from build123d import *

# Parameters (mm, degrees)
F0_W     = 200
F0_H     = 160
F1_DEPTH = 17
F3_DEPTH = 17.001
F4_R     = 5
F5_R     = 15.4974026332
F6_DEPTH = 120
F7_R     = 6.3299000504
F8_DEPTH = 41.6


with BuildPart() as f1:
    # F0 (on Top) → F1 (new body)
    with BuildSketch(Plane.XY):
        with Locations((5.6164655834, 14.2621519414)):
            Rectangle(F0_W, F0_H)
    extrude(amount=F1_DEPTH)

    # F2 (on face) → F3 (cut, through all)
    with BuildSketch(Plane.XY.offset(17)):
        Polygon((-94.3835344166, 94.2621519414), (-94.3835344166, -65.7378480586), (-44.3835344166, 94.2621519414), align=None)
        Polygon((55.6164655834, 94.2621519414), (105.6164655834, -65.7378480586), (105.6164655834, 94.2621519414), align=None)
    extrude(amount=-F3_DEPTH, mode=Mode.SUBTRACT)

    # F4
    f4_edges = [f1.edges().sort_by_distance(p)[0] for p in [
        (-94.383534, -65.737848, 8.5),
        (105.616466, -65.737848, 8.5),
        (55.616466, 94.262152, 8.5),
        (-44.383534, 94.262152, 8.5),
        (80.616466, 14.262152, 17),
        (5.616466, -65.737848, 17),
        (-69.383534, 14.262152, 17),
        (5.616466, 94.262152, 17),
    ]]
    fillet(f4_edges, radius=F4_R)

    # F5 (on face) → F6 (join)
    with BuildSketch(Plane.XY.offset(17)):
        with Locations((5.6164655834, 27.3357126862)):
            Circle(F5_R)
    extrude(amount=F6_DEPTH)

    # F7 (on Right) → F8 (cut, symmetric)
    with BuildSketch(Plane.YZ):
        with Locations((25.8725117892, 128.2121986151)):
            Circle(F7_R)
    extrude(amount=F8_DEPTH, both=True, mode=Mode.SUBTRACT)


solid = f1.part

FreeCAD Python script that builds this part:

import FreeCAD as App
import Part
import Sketcher
from FreeCAD import Vector


def edges_at(feature, points):
    """Names of the edges that pass closest to the given points."""
    edges = feature.Shape.Edges
    near = lambda p: min(range(len(edges)), key=lambda i: edges[i].distToShape(Part.Vertex(*p))[0])
    return sorted({f"Edge{near(p) + 1}" for p in points})


def add_polygon(sketch, points):
    """Adds a closed chain of lines whose ends are joined by coincident constraints."""
    first, n = sketch.GeometryCount, len(points)
    for a, b in zip(points, points[1:] + points[:1]):
        sketch.addGeometry(Part.LineSegment(App.Vector(*a, 0), App.Vector(*b, 0)), False)
    for i in range(n):
        sketch.addConstraint(Sketcher.Constraint("Coincident", first + i, 2, first + (i + 1) % n, 1))

doc = App.newDocument("Part")
body = doc.addObject("PartDesign::Body", "Body")

sketch1 = body.newObject("Sketcher::SketchObject", "Sketch")
sketch1.AttachmentSupport = (doc.getObject("XY_Plane"), [""])
sketch1.MapMode = "FlatFace"
add_polygon(sketch1, [(-94, 94), (-94, -66), (106, -66), (106, 94)])
sketch1.addConstraint([
    Sketcher.Constraint("Vertical", 0),
    Sketcher.Constraint("Horizontal", 1),
    Sketcher.Constraint("Vertical", 2),
    Sketcher.Constraint("Horizontal", 3),
    Sketcher.Constraint("DistanceX", 1, 1, 1, 2, 200.0),
    Sketcher.Constraint("DistanceY", 0, 2, 0, 1, 160.0),
    Sketcher.Constraint("DistanceY", 0, 2, -1, 1, 65.737848),
    Sketcher.Constraint("DistanceX", 0, 2, -1, 1, 94.383534),
])
pad1 = body.newObject("PartDesign::Pad", "Pad")
pad1.Profile = sketch1
pad1.Length = 17

sketch2 = body.newObject("Sketcher::SketchObject", "Sketch001")
sketch2.AttachmentSupport = (doc.getObject("XY_Plane"), [""])
sketch2.MapMode = "FlatFace"
sketch2.AttachmentOffset = App.Placement(Vector(0, 0, 17), App.Rotation())
add_polygon(sketch2, [(-94, 94), (-94, -66), (-44, 94)])
add_polygon(sketch2, [(56, 94), (106, -66), (106, 94)])
sketch2.addConstraint([
    Sketcher.Constraint("Vertical", 0),
    Sketcher.Constraint("Horizontal", 2),
    Sketcher.Constraint("Vertical", 4),
    Sketcher.Constraint("Horizontal", 5),
    Sketcher.Constraint("Horizontal", 0, 2, 3, 2),
    Sketcher.Constraint("Horizontal", 2, 2, 4, 2),
    Sketcher.Constraint("Equal", 2, 5),
    Sketcher.Constraint("DistanceX", 2, 2, 2, 1, 50.0),
    Sketcher.Constraint("DistanceY", 0, 2, 0, 1, 160.0),
    Sketcher.Constraint("DistanceX", 0, 2, 3, 2, 200.0),
    Sketcher.Constraint("DistanceY", 0, 2, -1, 1, 65.737848),
    Sketcher.Constraint("DistanceX", 0, 2, -1, 1, 94.383534),
])
pocket1 = body.newObject("PartDesign::Pocket", "Pocket")
pocket1.Profile = sketch2
pocket1.Type = "ThroughAll"
doc.recompute()

fillet = body.newObject("PartDesign::Fillet", "Fillet")
fillet.Base = (pocket1, edges_at(pocket1, [
    (-94.384, -65.738, 8.5),
    (105.616, -65.738, 8.5),
    (55.616, 94.262, 8.5),
    (-44.384, 94.262, 8.5),
    (80.616, 14.262, 17),
    (5.616, -65.738, 17),
    (-69.384, 14.262, 17),
    (5.616, 94.262, 17),
]))
fillet.Radius = 5

sketch3 = body.newObject("Sketcher::SketchObject", "Sketch002")
sketch3.AttachmentSupport = (doc.getObject("XY_Plane"), [""])
sketch3.MapMode = "FlatFace"
sketch3.AttachmentOffset = App.Placement(Vector(0, 0, 17), App.Rotation())
sketch3.addGeometry(Part.Circle(Vector(6, 27, 0), Vector(0, 0, 1), 15), False)
sketch3.addConstraint([
    Sketcher.Constraint("Diameter", 0, 30.994805),
    Sketcher.Constraint("DistanceX", -1, 1, 0, 3, 5.616466),
    Sketcher.Constraint("DistanceY", -1, 1, 0, 3, 27.335713),
])
pad2 = body.newObject("PartDesign::Pad", "Pad001")
pad2.Profile = sketch3
pad2.Length = 120

sketch4 = body.newObject("Sketcher::SketchObject", "Sketch003")
sketch4.AttachmentSupport = (doc.getObject("YZ_Plane"), [""])
sketch4.MapMode = "FlatFace"
sketch4.addGeometry(Part.Circle(Vector(26, 128, 0), Vector(0, 0, 1), 6), False)
sketch4.addConstraint([
    Sketcher.Constraint("Diameter", 0, 12.6598),
    Sketcher.Constraint("DistanceY", -1, 1, 0, 3, 128.212199),
    Sketcher.Constraint("DistanceX", -1, 1, 0, 3, 25.872512),
])
pocket2 = body.newObject("PartDesign::Pocket", "Pocket001")
pocket2.Profile = sketch4
pocket2.Length = 83.2
pocket2.Midplane = True

doc.recompute()
